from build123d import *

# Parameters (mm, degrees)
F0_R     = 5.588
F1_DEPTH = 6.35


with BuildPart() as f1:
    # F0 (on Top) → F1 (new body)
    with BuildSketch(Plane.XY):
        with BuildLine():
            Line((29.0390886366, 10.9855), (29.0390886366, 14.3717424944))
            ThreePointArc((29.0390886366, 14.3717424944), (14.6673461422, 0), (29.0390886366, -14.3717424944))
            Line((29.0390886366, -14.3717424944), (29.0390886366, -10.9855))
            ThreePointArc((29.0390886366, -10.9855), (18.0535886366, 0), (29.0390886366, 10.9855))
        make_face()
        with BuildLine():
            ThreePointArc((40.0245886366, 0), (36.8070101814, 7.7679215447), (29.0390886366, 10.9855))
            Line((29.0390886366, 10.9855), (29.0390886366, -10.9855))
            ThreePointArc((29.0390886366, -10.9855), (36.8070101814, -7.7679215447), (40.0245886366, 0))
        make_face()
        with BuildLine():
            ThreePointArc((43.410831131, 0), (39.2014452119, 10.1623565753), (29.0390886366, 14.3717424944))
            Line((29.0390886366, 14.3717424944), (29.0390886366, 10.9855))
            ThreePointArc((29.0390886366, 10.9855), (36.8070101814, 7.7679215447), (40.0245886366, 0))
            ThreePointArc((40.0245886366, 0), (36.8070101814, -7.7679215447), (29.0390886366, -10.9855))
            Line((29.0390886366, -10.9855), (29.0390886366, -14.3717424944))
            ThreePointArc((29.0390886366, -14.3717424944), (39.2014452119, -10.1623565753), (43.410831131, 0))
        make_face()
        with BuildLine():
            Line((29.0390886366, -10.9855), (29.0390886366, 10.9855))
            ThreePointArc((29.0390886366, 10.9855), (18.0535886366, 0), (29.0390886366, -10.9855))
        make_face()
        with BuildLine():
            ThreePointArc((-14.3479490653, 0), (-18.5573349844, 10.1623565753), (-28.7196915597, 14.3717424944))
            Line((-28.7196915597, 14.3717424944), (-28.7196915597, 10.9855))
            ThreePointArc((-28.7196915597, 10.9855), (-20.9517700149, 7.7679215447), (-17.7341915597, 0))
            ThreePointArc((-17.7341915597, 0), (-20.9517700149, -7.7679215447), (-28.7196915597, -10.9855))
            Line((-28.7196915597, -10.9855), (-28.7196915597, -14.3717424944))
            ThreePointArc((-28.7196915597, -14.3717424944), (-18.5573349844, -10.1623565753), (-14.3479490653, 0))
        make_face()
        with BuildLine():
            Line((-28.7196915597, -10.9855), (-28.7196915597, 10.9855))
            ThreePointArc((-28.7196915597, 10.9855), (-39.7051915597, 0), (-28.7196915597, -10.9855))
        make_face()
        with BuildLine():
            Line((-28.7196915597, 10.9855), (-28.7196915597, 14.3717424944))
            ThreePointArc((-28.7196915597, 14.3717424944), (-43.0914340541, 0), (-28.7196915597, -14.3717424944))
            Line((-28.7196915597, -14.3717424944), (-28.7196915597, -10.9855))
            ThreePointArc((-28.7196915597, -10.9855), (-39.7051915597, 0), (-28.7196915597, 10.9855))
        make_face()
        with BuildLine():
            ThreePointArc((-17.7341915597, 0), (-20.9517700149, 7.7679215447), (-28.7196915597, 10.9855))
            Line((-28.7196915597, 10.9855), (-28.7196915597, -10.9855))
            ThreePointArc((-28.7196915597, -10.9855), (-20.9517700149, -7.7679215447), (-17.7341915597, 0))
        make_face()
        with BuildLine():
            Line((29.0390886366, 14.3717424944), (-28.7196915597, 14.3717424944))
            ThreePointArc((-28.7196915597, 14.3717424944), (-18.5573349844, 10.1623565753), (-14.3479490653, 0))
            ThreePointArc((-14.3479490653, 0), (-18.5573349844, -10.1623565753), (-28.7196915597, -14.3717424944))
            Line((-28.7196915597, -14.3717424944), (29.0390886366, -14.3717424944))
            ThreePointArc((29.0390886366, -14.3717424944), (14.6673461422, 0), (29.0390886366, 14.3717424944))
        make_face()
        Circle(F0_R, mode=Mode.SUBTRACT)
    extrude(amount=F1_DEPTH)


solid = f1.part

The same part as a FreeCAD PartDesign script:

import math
import FreeCAD as App
import Part
import Sketcher
from FreeCAD import Vector
Q = App.Units.Quantity

doc = App.newDocument("Part")
body = doc.addObject("PartDesign::Body", "Body")

sketch1 = doc.addObject("Sketcher::SketchObject", "Sketch")
body.addObject(sketch1)
sketch1.AttachmentSupport = (doc.XY_Plane, [""])
sketch1.MapMode = "FlatFace"
sketch1.addGeometry([
    Part.ArcOfCircle(Part.Circle(Vector(29.039089, 0, 0), Vector(0, 0, 1), 14.371742), math.radians(-90), math.radians(0)),
    Part.ArcOfCircle(Part.Circle(Vector(29.039089, 0, 0), Vector(0, 0, 1), 14.371742), math.radians(0), math.radians(90)),
    Part.LineSegment(Vector(29.039089, 14.371742, 0), Vector(-28.719692, 14.371742, 0)),
    Part.ArcOfCircle(Part.Circle(Vector(-28.719692, 0, 0), Vector(0, 0, 1), 14.371742), math.radians(90), math.radians(270)),
    Part.LineSegment(Vector(-28.719692, -14.371742, 0), Vector(29.039089, -14.371742, 0)),
    Part.Circle(Vector(0, 0, 0), Vector(0, 0, 1), 5.588),
], False)
sketch1.addConstraint([
    Sketcher.Constraint("Tangent", 0, 2, 1, 1),
    Sketcher.Constraint("Tangent", 1, 2, 2, 1),
    Sketcher.Constraint("Tangent", 2, 2, 3, 1),
    Sketcher.Constraint("Tangent", 3, 2, 4, 1),
    Sketcher.Constraint("Tangent", 4, 2, 0, 1),
    Sketcher.Constraint("Horizontal", 2),
    Sketcher.Constraint("Horizontal", 4),
    Sketcher.Constraint("Coincident", 5, 3, -1, 1),
    Sketcher.Constraint("Equal", 0, 1),
    Sketcher.Constraint("PointOnObject", 0, 3, -1),
    Sketcher.Constraint("PointOnObject", 0, 2, -1),
    Sketcher.Constraint("Diameter", 5, Q("0.44 in")),
    Sketcher.Constraint("Radius", 0, 14.371742),
    Sketcher.Constraint("DistanceX", 2, 2, 2, 1, 57.75878),
    Sketcher.Constraint("DistanceX", -1, 1, 0, 3, 29.039089),
])
pad1 = doc.addObject("PartDesign::Pad", "Pad")
body.addObject(pad1)
pad1.Profile = sketch1
pad1.Length = Q("0.25 in")

doc.recompute()
